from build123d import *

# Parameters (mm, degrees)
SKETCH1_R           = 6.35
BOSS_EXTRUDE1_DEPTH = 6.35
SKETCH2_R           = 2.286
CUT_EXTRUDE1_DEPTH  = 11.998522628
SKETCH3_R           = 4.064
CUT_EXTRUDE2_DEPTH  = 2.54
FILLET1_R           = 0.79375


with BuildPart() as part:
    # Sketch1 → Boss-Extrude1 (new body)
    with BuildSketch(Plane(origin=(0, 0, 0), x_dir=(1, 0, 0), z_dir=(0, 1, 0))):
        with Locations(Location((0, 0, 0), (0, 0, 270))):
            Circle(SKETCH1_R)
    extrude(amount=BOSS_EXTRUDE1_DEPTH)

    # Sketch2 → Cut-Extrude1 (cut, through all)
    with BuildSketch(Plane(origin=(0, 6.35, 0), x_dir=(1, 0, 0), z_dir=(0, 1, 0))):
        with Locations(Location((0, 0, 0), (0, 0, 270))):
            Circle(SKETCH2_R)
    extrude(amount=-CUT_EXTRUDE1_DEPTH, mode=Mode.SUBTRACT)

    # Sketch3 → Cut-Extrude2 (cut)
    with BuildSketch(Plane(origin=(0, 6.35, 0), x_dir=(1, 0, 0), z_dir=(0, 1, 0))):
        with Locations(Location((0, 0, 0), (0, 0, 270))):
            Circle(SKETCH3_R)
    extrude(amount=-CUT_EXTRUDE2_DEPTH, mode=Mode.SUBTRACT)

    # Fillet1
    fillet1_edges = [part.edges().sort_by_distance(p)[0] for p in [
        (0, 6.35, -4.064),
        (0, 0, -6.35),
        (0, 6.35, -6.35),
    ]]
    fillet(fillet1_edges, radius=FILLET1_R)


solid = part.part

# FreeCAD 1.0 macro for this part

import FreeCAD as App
import Part
import Sketcher
from FreeCAD import Vector
Q = App.Units.Quantity


def edges_at(feature, points):
    """Names of the edges that pass closest to the given points."""
    edges = feature.Shape.Edges
    near = lambda p: min(range(len(edges)), key=lambda i: edges[i].distToShape(Part.Vertex(*p))[0])
    return sorted({f"Edge{near(p) + 1}" for p in points})

doc = App.newDocument("Part")
body = doc.addObject("PartDesign::Body", "Body")

# Sketch on XZ plane
sketch1 = doc.addObject("Sketcher::SketchObject", "Sketch")
body.addObject(sketch1)
sketch1.AttachmentSupport = (doc.XZ_Plane, [""])
sketch1.MapMode = "FlatFace"
sketch1.addGeometry(Part.Circle(Vector(0, 0, 0), Vector(0, 0, 1), 6), False)
sketch1.addConstraint([
    Sketcher.Constraint("Coincident", 0, 3, -1, 1),
    Sketcher.Constraint("Diameter", 0, Q("0.5 in")),
])
pad1 = doc.addObject("PartDesign::Pad", "Pad")
body.addObject(pad1)
pad1.Profile = sketch1
pad1.Length = Q("0.25 in")
pad1.Reversed = True

# Sketch on XZ plane
sketch2 = doc.addObject("Sketcher::SketchObject", "Sketch001")
body.addObject(sketch2)
sketch2.AttachmentSupport = (doc.XZ_Plane, [""])
sketch2.MapMode = "FlatFace"
sketch2.AttachmentOffset = App.Placement(Vector(0, 0, -0.25 * 25.4), App.Rotation())
sketch2.addGeometry(Part.Circle(Vector(0, 0, 0), Vector(0, 0, 1), 2.3), False)
sketch2.addConstraint([
    Sketcher.Constraint("Coincident", 0, 3, -1, 1),
    Sketcher.Constraint("Diameter", 0, Q("0.18 in")),
])
pocket1 = doc.addObject("PartDesign::Pocket", "Pocket")
body.addObject(pocket1)
pocket1.Profile = sketch2
pocket1.Type = "ThroughAll"
pocket1.Reversed = True

# Sketch on XZ plane
sketch3 = doc.addObject("Sketcher::SketchObject", "Sketch002")
body.addObject(sketch3)
sketch3.AttachmentSupport = (doc.XZ_Plane, [""])
sketch3.MapMode = "FlatFace"
sketch3.AttachmentOffset = App.Placement(Vector(0, 0, -0.25 * 25.4), App.Rotation())
sketch3.addGeometry(Part.Circle(Vector(0, 0, 0), Vector(0, 0, 1), 4.1), False)
sketch3.addConstraint([
    Sketcher.Constraint("Coincident", 0, 3, -1, 1),
    Sketcher.Constraint("Diameter", 0, Q("0.32 in")),
])
pocket2 = doc.addObject("PartDesign::Pocket", "Pocket001")
body.addObject(pocket2)
pocket2.Profile = sketch3
pocket2.Length = Q("0.1 in")
pocket2.Reversed = True
doc.recompute()

fillet = doc.addObject("PartDesign::Fillet", "Fillet")
body.addObject(fillet)
fillet.Base = (pocket2, edges_at(pocket2, [(0, 6.35, -4.064), (0, 0, -6.35), (0, 6.35, -6.35)]))
fillet.Radius = Q("0.03125 in")

doc.recompute()
